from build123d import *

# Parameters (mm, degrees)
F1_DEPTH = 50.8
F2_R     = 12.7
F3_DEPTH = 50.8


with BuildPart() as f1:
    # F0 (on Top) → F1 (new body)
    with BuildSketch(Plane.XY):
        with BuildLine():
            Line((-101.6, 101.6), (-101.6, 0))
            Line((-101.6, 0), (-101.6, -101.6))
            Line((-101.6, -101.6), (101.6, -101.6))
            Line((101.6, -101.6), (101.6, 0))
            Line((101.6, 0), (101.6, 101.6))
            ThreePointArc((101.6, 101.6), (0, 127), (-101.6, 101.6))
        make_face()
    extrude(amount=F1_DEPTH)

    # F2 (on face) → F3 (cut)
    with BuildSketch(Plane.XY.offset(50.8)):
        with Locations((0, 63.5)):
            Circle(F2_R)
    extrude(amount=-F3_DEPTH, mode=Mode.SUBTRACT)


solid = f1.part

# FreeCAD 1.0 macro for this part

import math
import FreeCAD as App
import Part
import Sketcher

V = App.Vector
Q = App.Units.Quantity

doc = App.newDocument("Part")
body = doc.addObject("PartDesign::Body", "Body")

# Sketch on XY plane
sketch1 = body.newObject("Sketcher::SketchObject", "Sketch")
sketch1.AttachmentSupport = (doc.getObject("XY_Plane"), [""])
sketch1.MapMode = "FlatFace"
sketch1.addGeometry(Part.LineSegment(V(-101.6, 101.6, 0), V(-101.6, -101.6, 0)), False)
sketch1.addGeometry(Part.LineSegment(V(-101.6, -101.6, 0), V(101.6, -101.6, 0)), False)
sketch1.addGeometry(Part.LineSegment(V(101.6, -101.6, 0), V(101.6, 101.6, 0)), False)
sketch1.addGeometry(Part.ArcOfCircle(Part.Circle(V(0, -88.9, 0), V(0, 0, 1), 215.9), math.radians(61.927513), math.radians(118.072487)), False)
sketch1.addConstraint(Sketcher.Constraint("Coincident", 0, 2, 1, 1))
sketch1.addConstraint(Sketcher.Constraint("Coincident", 1, 2, 2, 1))
sketch1.addConstraint(Sketcher.Constraint("Coincident", 2, 2, 3, 1))
sketch1.addConstraint(Sketcher.Constraint("Coincident", 3, 2, 0, 1))
sketch1.addConstraint(Sketcher.Constraint("Vertical", 0))
sketch1.addConstraint(Sketcher.Constraint("Horizontal", 1))
sketch1.addConstraint(Sketcher.Constraint("Vertical", 2))
sketch1.addConstraint(Sketcher.Constraint("Symmetric", 0, 2, 2, 2, -1, 1))
sketch1.addConstraint(Sketcher.Constraint("PointOnObject", 3, 3, -2))
sketch1.addConstraint(Sketcher.Constraint("Equal", 1, 0))
sketch1.addConstraint(Sketcher.Constraint("Radius", 3, Q("8.5 in")))
sketch1.addConstraint(Sketcher.Constraint("DistanceX", 1, 1, 1, 2, Q("8 in")))
pad1 = body.newObject("PartDesign::Pad", "Pad")
pad1.Profile = sketch1
pad1.Length = Q("2 in")

# Sketch on XY plane
sketch2 = body.newObject("Sketcher::SketchObject", "Sketch001")
sketch2.AttachmentSupport = (doc.getObject("XY_Plane"), [""])
sketch2.MapMode = "FlatFace"
sketch2.AttachmentOffset = App.Placement(V(0, 0, 2 * 25.4), App.Rotation())
sketch2.addGeometry(Part.Circle(V(0, 63.5, 0), V(0, 0, 1), 12.7), False)
sketch2.addConstraint(Sketcher.Constraint("PointOnObject", 0, 3, -2))
sketch2.addConstraint(Sketcher.Constraint("Diameter", 0, Q("1 in")))
sketch2.addConstraint(Sketcher.Constraint("DistanceY", -1, 1, 0, 3, Q("2.5 in")))
pocket1 = body.newObject("PartDesign::Pocket", "Pocket")
pocket1.Profile = sketch2
pocket1.Length = Q("2 in")

doc.recompute()
